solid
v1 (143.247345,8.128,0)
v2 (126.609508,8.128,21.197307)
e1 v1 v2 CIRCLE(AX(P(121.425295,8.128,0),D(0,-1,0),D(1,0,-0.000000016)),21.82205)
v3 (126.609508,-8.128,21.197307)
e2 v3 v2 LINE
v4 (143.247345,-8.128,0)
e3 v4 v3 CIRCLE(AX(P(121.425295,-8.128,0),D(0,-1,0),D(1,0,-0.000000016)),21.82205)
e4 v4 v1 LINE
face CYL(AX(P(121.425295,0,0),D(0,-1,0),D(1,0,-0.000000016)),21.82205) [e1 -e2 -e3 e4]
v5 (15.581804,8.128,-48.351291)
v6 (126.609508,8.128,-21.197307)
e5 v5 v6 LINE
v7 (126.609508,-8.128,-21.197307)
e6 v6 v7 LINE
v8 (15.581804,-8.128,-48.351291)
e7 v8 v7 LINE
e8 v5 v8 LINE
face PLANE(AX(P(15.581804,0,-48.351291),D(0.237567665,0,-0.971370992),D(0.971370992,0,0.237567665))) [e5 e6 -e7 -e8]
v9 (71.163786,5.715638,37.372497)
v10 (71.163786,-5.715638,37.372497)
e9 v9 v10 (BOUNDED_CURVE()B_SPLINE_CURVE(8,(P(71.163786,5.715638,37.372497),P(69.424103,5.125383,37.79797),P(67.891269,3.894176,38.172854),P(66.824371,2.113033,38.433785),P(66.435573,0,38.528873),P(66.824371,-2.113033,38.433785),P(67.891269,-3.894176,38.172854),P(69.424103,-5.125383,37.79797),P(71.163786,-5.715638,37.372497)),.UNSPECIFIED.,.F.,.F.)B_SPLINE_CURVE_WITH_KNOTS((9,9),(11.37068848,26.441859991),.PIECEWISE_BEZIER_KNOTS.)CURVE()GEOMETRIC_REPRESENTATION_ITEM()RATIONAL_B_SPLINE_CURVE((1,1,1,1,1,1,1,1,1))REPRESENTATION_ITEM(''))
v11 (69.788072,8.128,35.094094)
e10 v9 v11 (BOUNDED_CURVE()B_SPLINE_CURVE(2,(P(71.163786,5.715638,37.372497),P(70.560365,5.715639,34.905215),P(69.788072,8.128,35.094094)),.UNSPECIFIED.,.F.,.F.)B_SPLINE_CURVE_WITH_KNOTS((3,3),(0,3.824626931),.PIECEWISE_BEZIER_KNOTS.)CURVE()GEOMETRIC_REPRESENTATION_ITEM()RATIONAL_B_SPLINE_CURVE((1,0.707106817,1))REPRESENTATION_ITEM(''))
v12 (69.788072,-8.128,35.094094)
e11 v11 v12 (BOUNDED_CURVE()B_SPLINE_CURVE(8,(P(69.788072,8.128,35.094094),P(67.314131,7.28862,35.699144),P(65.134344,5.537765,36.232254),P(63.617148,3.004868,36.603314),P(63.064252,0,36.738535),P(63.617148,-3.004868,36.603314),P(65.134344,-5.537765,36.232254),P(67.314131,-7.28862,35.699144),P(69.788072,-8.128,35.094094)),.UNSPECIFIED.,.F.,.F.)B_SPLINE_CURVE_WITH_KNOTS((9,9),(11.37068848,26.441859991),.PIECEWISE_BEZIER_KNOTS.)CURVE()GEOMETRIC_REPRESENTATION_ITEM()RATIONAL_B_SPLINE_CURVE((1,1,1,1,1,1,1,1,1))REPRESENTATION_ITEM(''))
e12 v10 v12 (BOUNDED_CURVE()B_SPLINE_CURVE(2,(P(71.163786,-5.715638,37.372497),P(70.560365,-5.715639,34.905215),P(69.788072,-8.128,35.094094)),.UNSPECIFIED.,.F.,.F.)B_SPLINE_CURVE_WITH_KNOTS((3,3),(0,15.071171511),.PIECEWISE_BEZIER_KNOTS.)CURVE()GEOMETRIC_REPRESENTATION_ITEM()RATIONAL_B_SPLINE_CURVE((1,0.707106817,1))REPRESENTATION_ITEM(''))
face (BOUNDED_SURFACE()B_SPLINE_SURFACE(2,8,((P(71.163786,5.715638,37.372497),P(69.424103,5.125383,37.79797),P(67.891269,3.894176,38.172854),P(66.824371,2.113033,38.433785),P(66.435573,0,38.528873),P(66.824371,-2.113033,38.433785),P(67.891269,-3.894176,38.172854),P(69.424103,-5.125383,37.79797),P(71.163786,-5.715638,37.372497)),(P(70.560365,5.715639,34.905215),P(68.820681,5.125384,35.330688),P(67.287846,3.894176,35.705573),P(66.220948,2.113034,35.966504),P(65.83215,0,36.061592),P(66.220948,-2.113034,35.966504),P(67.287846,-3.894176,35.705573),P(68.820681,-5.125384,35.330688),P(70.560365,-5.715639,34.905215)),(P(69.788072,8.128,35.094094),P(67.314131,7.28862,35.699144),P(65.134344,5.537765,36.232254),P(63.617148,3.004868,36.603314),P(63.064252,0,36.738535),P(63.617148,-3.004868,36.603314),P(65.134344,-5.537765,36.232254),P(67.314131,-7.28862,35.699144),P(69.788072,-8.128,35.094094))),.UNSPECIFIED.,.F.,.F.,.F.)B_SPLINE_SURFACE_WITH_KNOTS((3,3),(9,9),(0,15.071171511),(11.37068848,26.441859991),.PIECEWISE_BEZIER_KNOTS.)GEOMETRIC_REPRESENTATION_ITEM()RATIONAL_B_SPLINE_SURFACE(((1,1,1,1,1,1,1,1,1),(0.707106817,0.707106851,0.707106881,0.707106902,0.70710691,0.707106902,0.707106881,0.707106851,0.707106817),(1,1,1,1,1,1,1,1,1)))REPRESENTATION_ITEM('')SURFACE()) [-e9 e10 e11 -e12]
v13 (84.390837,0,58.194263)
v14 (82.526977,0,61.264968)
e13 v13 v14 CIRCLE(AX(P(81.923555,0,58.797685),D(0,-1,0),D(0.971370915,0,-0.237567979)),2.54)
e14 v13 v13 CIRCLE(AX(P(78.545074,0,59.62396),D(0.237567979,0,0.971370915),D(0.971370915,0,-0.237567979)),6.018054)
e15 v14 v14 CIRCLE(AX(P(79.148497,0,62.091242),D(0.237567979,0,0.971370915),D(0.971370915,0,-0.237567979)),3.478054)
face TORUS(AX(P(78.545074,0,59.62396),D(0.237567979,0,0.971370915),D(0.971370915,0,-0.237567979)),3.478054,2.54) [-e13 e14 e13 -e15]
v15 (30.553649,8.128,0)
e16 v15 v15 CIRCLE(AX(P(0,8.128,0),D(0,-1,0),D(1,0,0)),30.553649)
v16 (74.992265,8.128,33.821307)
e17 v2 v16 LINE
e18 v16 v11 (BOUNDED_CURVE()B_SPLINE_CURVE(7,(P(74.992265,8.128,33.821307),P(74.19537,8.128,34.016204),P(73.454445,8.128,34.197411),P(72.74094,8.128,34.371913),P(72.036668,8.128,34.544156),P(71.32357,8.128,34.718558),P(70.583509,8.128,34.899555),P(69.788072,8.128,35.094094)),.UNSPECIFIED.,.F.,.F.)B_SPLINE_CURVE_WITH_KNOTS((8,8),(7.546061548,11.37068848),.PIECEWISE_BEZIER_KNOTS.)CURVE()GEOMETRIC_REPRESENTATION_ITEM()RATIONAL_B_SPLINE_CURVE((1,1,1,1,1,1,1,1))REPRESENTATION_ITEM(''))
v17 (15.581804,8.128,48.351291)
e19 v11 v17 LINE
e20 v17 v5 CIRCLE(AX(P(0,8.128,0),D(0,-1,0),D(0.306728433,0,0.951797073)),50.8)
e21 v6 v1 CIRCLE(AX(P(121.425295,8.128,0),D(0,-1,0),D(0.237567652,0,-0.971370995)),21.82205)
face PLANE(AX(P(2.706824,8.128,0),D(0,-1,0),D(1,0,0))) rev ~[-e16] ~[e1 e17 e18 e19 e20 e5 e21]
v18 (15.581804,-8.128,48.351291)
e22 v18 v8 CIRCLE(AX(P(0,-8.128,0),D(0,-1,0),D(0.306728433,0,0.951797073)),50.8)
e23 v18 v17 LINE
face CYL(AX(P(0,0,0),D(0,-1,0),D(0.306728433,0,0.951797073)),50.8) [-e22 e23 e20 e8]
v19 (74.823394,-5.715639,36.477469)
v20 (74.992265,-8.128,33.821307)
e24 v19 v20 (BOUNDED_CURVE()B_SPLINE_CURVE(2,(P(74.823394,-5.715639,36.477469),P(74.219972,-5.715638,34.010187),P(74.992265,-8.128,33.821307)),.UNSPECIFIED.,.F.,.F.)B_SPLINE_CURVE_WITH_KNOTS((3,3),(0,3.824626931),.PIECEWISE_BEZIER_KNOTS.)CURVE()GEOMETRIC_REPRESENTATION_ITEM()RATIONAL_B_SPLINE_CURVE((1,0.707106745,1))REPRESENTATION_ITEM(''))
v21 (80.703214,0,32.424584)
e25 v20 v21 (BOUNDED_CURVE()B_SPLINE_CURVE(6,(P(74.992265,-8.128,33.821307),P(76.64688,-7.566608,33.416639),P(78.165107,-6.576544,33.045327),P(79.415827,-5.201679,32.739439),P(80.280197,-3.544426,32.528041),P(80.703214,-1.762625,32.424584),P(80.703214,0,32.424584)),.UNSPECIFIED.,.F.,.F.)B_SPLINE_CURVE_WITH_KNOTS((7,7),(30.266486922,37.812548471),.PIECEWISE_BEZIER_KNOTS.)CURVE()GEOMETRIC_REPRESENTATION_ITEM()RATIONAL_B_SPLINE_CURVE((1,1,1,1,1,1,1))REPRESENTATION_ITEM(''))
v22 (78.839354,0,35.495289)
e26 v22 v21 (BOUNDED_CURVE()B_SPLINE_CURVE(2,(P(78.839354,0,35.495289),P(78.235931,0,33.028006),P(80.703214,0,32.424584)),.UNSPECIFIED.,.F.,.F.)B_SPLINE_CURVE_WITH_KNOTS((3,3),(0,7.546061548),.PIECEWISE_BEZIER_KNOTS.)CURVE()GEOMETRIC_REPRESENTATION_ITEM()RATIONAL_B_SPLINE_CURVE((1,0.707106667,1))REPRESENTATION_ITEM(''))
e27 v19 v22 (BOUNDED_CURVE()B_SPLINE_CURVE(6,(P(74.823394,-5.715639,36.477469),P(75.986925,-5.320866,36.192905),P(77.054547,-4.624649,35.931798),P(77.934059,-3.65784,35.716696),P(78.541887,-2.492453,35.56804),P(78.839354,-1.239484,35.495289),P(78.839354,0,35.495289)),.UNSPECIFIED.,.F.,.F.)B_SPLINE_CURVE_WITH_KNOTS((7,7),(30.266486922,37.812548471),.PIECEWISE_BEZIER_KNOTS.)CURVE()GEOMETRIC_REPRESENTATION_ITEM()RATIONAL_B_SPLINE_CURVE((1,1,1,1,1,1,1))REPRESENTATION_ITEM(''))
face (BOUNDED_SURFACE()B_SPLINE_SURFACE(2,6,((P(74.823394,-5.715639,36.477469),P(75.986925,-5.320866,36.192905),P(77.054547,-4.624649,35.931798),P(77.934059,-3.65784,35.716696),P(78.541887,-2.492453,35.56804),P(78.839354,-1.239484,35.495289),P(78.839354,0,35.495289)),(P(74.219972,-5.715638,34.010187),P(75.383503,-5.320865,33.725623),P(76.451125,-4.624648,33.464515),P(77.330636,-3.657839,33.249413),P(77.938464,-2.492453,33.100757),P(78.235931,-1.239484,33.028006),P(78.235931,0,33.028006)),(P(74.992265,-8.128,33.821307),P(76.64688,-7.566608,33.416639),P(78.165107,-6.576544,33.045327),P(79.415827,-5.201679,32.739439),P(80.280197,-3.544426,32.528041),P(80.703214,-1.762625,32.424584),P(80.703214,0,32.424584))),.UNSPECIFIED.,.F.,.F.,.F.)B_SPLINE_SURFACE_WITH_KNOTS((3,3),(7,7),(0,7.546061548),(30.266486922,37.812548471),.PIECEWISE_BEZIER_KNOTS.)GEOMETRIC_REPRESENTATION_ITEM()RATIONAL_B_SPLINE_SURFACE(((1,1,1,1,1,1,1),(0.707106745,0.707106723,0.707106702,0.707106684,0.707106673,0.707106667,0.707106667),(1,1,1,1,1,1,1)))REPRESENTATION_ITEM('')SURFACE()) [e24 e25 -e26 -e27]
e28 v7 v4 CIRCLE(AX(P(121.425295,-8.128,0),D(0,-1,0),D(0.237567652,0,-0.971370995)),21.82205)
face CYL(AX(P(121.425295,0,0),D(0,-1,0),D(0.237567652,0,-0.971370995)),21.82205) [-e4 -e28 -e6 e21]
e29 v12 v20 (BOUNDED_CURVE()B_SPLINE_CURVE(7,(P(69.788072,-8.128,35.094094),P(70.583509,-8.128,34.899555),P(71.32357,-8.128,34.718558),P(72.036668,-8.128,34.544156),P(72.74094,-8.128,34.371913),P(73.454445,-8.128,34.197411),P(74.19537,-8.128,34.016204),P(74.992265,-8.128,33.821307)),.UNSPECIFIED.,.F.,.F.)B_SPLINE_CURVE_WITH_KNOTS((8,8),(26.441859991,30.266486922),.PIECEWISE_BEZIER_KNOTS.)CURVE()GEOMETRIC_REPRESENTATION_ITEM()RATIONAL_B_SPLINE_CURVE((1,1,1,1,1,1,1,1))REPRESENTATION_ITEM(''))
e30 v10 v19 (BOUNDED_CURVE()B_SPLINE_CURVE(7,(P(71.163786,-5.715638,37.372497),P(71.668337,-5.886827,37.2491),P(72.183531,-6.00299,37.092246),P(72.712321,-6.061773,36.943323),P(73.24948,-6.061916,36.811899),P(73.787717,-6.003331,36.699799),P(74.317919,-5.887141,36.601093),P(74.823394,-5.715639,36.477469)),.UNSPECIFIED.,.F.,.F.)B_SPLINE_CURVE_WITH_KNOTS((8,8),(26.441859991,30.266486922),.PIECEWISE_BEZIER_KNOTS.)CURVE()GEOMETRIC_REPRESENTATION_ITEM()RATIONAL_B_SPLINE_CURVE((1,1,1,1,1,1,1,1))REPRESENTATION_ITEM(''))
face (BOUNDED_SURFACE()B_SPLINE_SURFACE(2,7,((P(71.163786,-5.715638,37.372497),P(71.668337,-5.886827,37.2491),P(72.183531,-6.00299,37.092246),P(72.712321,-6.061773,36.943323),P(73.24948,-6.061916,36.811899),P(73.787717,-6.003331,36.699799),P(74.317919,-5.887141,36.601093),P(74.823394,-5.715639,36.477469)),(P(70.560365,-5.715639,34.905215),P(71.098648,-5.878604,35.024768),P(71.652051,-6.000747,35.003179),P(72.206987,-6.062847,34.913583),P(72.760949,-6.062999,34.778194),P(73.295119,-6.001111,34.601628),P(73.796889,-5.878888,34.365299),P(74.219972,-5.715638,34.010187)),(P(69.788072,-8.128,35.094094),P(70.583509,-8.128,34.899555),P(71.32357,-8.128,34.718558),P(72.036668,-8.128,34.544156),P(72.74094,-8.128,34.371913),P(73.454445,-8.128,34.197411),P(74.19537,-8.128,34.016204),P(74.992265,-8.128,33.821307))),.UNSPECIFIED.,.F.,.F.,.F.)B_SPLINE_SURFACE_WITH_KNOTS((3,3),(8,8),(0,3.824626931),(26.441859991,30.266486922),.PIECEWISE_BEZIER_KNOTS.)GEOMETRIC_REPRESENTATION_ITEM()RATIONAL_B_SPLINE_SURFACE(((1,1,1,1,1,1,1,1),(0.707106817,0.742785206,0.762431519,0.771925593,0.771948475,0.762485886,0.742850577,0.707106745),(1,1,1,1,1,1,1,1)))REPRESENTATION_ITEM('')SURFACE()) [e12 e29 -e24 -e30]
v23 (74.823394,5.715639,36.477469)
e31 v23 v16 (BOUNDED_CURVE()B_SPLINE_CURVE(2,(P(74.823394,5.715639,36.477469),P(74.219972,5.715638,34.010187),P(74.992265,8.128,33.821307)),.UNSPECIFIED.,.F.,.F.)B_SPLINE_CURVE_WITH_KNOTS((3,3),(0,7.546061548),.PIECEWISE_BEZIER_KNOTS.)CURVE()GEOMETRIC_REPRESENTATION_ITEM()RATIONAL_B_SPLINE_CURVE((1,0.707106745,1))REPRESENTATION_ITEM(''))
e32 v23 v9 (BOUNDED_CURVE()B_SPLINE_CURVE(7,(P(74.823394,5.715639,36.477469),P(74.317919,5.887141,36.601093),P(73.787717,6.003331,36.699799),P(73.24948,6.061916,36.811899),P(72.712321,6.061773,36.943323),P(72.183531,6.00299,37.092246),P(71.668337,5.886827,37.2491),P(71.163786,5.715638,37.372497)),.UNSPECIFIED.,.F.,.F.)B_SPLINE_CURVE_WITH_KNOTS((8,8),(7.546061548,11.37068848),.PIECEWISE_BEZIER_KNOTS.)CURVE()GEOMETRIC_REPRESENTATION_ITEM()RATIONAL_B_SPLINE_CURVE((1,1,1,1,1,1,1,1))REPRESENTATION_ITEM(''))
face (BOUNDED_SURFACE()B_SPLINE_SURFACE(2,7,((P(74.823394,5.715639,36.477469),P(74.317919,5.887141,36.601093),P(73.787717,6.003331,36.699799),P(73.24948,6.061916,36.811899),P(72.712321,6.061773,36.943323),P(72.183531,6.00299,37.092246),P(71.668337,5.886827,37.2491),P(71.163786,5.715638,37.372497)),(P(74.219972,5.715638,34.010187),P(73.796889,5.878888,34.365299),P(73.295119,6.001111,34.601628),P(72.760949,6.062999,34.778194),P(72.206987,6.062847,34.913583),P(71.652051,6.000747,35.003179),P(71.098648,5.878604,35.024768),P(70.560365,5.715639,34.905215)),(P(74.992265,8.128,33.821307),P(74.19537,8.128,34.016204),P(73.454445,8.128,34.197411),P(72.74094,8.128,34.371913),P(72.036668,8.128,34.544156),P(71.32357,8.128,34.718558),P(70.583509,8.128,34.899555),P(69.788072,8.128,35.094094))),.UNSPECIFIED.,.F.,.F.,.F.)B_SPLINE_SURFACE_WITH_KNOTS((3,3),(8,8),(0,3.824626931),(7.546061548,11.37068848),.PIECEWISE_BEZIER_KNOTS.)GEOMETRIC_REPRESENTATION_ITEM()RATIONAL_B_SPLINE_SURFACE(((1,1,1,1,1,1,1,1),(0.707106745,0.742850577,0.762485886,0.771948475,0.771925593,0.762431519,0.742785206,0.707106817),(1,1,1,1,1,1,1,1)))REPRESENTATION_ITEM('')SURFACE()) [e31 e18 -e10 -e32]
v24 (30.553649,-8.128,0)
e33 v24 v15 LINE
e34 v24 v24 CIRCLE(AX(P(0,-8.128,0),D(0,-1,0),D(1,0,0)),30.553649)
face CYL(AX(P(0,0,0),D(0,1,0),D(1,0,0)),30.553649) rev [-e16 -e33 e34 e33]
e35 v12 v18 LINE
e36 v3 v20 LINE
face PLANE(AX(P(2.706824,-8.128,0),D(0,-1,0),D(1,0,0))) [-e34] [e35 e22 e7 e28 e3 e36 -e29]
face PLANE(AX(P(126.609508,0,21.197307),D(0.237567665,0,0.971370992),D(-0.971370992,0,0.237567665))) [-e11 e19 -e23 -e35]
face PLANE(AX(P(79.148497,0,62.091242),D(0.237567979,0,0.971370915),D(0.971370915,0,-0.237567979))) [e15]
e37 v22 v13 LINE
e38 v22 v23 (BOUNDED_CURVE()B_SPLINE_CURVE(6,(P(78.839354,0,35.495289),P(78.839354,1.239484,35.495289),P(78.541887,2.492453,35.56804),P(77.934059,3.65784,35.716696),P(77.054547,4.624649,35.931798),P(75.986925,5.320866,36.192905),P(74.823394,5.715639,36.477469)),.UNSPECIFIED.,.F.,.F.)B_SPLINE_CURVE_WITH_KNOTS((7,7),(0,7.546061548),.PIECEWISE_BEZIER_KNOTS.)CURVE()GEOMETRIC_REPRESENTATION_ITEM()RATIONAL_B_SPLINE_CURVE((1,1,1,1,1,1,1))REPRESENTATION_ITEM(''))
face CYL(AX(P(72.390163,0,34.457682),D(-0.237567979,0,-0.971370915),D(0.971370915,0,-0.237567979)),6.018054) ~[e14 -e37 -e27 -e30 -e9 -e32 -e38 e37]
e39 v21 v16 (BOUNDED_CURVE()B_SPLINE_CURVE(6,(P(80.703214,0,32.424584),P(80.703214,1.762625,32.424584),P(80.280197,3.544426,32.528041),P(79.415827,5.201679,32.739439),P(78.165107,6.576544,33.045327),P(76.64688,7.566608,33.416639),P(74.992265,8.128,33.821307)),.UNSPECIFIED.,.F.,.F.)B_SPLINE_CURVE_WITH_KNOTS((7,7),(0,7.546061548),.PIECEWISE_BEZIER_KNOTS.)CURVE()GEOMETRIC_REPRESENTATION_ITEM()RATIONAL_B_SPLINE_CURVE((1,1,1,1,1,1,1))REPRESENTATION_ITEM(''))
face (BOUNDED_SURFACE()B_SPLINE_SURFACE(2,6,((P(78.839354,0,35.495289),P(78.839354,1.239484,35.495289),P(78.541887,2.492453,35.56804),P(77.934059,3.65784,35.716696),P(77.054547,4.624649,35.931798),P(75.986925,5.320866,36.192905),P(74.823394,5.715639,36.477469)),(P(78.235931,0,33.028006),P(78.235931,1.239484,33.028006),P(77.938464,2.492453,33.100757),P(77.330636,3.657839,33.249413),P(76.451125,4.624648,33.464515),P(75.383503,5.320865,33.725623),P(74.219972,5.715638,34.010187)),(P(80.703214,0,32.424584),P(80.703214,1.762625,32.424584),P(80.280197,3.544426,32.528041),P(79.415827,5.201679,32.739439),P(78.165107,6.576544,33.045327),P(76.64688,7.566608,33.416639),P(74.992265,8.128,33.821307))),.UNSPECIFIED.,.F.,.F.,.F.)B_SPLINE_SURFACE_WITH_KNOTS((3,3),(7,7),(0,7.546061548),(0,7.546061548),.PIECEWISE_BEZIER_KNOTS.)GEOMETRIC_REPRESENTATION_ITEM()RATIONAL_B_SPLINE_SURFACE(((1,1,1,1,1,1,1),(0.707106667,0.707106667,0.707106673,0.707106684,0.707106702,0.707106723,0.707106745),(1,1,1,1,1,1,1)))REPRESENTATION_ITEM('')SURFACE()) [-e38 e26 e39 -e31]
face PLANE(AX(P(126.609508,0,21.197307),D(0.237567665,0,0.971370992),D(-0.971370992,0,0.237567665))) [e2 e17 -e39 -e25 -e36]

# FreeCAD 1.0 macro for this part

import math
import FreeCAD as App
import Part
import Sketcher

V = App.Vector
Q = App.Units.Quantity


def edges_at(feature, points):
    """Names of the edges that pass closest to the given points."""
    edges = feature.Shape.Edges
    near = lambda p: min(range(len(edges)), key=lambda i: edges[i].distToShape(Part.Vertex(*p))[0])
    return sorted({f"Edge{near(p) + 1}" for p in points})

doc = App.newDocument("Part")
body = doc.addObject("PartDesign::Body", "Body")

sketch1 = body.newObject("Sketcher::SketchObject", "Sketch")
sketch1.AttachmentSupport = (doc.getObject("XZ_Plane"), [""])
sketch1.MapMode = "FlatFace"
sketch1.addGeometry([
    Part.ArcOfCircle(Part.Circle(V(0, 0, 0), V(0, 0, 1), 51), math.radians(72), math.radians(288)),
    Part.LineSegment(V(16, -48, 0), V(127, -21, 0)),
    Part.ArcOfCircle(Part.Circle(V(121, 0, 0), V(0, 0, 1), 22), math.radians(-76), math.radians(0)),
    Part.ArcOfCircle(Part.Circle(V(121, 0, 0), V(0, 0, 1), 22), math.radians(0), math.radians(76)),
    Part.LineSegment(V(127, 21, 0), V(16, 48, 0)),
    Part.Circle(V(0, 0, 0), V(0, 0, 1), 31),
], False)
sketch1.addConstraint([
    Sketcher.Constraint("Coincident", 0, 2, 1, 1),
    Sketcher.Constraint("Tangent", 1, 2, 2, 1),
    Sketcher.Constraint("Tangent", 2, 2, 3, 1),
    Sketcher.Constraint("Tangent", 3, 2, 4, 1),
    Sketcher.Constraint("Coincident", 4, 2, 0, 1),
    Sketcher.Constraint("Coincident", 0, 3, -1, 1),
    Sketcher.Constraint("Coincident", 5, 3, -1, 1),
    Sketcher.Constraint("Equal", 2, 3),
    Sketcher.Constraint("Symmetric", 1, 2, 3, 2, -1),
    Sketcher.Constraint("PointOnObject", 2, 2, -1),
    Sketcher.Constraint("Radius", 0, Q("2 in")),
    Sketcher.Constraint("Distance", 1, Q("4.5 in")),
    Sketcher.Constraint("Radius", 2, 21.82205),
    Sketcher.Constraint("Diameter", 5, 61.107298),
    Sketcher.Constraint("DistanceY", 0, 2, -1, 1, 48.351291),
])
pad1 = body.newObject("PartDesign::Pad", "Pad")
pad1.Profile = sketch1
pad1.Length = Q("0.64 in")
pad1.Midplane = True

sketch2 = body.newObject("Sketcher::SketchObject", "Sketch001")
sketch2.Placement = App.Placement(V(12.037263, 0, 49.218178), App.Rotation(V(0.971370915, 0, -0.237567979), V(0, 0.999999999, 0), V(0.237567979, 0, 0.971370915), "ZXY"))
sketch2.addGeometry(Part.Circle(V(62, 0, 0), V(0, 0, 1), 6), False)
sketch2.addConstraint([
    Sketcher.Constraint("PointOnObject", 0, 3, -1),
    Sketcher.Constraint("Diameter", 0, 12.036108),
    Sketcher.Constraint("DistanceX", -1, 1, 0, 3, 62.131673),
])
pad2 = body.newObject("PartDesign::Pad", "Pad001")
pad2.Profile = sketch2
pad2.Length = Q("1.12 in")
doc.recompute()

fillet = body.newObject("PartDesign::Fillet", "Fillet")
fillet.Base = (pad2, edges_at(pad2, [(73.303, 0, 63.521), (66.544, 0, 35.887)]))
fillet.Radius = Q("0.1 in")

doc.recompute()
